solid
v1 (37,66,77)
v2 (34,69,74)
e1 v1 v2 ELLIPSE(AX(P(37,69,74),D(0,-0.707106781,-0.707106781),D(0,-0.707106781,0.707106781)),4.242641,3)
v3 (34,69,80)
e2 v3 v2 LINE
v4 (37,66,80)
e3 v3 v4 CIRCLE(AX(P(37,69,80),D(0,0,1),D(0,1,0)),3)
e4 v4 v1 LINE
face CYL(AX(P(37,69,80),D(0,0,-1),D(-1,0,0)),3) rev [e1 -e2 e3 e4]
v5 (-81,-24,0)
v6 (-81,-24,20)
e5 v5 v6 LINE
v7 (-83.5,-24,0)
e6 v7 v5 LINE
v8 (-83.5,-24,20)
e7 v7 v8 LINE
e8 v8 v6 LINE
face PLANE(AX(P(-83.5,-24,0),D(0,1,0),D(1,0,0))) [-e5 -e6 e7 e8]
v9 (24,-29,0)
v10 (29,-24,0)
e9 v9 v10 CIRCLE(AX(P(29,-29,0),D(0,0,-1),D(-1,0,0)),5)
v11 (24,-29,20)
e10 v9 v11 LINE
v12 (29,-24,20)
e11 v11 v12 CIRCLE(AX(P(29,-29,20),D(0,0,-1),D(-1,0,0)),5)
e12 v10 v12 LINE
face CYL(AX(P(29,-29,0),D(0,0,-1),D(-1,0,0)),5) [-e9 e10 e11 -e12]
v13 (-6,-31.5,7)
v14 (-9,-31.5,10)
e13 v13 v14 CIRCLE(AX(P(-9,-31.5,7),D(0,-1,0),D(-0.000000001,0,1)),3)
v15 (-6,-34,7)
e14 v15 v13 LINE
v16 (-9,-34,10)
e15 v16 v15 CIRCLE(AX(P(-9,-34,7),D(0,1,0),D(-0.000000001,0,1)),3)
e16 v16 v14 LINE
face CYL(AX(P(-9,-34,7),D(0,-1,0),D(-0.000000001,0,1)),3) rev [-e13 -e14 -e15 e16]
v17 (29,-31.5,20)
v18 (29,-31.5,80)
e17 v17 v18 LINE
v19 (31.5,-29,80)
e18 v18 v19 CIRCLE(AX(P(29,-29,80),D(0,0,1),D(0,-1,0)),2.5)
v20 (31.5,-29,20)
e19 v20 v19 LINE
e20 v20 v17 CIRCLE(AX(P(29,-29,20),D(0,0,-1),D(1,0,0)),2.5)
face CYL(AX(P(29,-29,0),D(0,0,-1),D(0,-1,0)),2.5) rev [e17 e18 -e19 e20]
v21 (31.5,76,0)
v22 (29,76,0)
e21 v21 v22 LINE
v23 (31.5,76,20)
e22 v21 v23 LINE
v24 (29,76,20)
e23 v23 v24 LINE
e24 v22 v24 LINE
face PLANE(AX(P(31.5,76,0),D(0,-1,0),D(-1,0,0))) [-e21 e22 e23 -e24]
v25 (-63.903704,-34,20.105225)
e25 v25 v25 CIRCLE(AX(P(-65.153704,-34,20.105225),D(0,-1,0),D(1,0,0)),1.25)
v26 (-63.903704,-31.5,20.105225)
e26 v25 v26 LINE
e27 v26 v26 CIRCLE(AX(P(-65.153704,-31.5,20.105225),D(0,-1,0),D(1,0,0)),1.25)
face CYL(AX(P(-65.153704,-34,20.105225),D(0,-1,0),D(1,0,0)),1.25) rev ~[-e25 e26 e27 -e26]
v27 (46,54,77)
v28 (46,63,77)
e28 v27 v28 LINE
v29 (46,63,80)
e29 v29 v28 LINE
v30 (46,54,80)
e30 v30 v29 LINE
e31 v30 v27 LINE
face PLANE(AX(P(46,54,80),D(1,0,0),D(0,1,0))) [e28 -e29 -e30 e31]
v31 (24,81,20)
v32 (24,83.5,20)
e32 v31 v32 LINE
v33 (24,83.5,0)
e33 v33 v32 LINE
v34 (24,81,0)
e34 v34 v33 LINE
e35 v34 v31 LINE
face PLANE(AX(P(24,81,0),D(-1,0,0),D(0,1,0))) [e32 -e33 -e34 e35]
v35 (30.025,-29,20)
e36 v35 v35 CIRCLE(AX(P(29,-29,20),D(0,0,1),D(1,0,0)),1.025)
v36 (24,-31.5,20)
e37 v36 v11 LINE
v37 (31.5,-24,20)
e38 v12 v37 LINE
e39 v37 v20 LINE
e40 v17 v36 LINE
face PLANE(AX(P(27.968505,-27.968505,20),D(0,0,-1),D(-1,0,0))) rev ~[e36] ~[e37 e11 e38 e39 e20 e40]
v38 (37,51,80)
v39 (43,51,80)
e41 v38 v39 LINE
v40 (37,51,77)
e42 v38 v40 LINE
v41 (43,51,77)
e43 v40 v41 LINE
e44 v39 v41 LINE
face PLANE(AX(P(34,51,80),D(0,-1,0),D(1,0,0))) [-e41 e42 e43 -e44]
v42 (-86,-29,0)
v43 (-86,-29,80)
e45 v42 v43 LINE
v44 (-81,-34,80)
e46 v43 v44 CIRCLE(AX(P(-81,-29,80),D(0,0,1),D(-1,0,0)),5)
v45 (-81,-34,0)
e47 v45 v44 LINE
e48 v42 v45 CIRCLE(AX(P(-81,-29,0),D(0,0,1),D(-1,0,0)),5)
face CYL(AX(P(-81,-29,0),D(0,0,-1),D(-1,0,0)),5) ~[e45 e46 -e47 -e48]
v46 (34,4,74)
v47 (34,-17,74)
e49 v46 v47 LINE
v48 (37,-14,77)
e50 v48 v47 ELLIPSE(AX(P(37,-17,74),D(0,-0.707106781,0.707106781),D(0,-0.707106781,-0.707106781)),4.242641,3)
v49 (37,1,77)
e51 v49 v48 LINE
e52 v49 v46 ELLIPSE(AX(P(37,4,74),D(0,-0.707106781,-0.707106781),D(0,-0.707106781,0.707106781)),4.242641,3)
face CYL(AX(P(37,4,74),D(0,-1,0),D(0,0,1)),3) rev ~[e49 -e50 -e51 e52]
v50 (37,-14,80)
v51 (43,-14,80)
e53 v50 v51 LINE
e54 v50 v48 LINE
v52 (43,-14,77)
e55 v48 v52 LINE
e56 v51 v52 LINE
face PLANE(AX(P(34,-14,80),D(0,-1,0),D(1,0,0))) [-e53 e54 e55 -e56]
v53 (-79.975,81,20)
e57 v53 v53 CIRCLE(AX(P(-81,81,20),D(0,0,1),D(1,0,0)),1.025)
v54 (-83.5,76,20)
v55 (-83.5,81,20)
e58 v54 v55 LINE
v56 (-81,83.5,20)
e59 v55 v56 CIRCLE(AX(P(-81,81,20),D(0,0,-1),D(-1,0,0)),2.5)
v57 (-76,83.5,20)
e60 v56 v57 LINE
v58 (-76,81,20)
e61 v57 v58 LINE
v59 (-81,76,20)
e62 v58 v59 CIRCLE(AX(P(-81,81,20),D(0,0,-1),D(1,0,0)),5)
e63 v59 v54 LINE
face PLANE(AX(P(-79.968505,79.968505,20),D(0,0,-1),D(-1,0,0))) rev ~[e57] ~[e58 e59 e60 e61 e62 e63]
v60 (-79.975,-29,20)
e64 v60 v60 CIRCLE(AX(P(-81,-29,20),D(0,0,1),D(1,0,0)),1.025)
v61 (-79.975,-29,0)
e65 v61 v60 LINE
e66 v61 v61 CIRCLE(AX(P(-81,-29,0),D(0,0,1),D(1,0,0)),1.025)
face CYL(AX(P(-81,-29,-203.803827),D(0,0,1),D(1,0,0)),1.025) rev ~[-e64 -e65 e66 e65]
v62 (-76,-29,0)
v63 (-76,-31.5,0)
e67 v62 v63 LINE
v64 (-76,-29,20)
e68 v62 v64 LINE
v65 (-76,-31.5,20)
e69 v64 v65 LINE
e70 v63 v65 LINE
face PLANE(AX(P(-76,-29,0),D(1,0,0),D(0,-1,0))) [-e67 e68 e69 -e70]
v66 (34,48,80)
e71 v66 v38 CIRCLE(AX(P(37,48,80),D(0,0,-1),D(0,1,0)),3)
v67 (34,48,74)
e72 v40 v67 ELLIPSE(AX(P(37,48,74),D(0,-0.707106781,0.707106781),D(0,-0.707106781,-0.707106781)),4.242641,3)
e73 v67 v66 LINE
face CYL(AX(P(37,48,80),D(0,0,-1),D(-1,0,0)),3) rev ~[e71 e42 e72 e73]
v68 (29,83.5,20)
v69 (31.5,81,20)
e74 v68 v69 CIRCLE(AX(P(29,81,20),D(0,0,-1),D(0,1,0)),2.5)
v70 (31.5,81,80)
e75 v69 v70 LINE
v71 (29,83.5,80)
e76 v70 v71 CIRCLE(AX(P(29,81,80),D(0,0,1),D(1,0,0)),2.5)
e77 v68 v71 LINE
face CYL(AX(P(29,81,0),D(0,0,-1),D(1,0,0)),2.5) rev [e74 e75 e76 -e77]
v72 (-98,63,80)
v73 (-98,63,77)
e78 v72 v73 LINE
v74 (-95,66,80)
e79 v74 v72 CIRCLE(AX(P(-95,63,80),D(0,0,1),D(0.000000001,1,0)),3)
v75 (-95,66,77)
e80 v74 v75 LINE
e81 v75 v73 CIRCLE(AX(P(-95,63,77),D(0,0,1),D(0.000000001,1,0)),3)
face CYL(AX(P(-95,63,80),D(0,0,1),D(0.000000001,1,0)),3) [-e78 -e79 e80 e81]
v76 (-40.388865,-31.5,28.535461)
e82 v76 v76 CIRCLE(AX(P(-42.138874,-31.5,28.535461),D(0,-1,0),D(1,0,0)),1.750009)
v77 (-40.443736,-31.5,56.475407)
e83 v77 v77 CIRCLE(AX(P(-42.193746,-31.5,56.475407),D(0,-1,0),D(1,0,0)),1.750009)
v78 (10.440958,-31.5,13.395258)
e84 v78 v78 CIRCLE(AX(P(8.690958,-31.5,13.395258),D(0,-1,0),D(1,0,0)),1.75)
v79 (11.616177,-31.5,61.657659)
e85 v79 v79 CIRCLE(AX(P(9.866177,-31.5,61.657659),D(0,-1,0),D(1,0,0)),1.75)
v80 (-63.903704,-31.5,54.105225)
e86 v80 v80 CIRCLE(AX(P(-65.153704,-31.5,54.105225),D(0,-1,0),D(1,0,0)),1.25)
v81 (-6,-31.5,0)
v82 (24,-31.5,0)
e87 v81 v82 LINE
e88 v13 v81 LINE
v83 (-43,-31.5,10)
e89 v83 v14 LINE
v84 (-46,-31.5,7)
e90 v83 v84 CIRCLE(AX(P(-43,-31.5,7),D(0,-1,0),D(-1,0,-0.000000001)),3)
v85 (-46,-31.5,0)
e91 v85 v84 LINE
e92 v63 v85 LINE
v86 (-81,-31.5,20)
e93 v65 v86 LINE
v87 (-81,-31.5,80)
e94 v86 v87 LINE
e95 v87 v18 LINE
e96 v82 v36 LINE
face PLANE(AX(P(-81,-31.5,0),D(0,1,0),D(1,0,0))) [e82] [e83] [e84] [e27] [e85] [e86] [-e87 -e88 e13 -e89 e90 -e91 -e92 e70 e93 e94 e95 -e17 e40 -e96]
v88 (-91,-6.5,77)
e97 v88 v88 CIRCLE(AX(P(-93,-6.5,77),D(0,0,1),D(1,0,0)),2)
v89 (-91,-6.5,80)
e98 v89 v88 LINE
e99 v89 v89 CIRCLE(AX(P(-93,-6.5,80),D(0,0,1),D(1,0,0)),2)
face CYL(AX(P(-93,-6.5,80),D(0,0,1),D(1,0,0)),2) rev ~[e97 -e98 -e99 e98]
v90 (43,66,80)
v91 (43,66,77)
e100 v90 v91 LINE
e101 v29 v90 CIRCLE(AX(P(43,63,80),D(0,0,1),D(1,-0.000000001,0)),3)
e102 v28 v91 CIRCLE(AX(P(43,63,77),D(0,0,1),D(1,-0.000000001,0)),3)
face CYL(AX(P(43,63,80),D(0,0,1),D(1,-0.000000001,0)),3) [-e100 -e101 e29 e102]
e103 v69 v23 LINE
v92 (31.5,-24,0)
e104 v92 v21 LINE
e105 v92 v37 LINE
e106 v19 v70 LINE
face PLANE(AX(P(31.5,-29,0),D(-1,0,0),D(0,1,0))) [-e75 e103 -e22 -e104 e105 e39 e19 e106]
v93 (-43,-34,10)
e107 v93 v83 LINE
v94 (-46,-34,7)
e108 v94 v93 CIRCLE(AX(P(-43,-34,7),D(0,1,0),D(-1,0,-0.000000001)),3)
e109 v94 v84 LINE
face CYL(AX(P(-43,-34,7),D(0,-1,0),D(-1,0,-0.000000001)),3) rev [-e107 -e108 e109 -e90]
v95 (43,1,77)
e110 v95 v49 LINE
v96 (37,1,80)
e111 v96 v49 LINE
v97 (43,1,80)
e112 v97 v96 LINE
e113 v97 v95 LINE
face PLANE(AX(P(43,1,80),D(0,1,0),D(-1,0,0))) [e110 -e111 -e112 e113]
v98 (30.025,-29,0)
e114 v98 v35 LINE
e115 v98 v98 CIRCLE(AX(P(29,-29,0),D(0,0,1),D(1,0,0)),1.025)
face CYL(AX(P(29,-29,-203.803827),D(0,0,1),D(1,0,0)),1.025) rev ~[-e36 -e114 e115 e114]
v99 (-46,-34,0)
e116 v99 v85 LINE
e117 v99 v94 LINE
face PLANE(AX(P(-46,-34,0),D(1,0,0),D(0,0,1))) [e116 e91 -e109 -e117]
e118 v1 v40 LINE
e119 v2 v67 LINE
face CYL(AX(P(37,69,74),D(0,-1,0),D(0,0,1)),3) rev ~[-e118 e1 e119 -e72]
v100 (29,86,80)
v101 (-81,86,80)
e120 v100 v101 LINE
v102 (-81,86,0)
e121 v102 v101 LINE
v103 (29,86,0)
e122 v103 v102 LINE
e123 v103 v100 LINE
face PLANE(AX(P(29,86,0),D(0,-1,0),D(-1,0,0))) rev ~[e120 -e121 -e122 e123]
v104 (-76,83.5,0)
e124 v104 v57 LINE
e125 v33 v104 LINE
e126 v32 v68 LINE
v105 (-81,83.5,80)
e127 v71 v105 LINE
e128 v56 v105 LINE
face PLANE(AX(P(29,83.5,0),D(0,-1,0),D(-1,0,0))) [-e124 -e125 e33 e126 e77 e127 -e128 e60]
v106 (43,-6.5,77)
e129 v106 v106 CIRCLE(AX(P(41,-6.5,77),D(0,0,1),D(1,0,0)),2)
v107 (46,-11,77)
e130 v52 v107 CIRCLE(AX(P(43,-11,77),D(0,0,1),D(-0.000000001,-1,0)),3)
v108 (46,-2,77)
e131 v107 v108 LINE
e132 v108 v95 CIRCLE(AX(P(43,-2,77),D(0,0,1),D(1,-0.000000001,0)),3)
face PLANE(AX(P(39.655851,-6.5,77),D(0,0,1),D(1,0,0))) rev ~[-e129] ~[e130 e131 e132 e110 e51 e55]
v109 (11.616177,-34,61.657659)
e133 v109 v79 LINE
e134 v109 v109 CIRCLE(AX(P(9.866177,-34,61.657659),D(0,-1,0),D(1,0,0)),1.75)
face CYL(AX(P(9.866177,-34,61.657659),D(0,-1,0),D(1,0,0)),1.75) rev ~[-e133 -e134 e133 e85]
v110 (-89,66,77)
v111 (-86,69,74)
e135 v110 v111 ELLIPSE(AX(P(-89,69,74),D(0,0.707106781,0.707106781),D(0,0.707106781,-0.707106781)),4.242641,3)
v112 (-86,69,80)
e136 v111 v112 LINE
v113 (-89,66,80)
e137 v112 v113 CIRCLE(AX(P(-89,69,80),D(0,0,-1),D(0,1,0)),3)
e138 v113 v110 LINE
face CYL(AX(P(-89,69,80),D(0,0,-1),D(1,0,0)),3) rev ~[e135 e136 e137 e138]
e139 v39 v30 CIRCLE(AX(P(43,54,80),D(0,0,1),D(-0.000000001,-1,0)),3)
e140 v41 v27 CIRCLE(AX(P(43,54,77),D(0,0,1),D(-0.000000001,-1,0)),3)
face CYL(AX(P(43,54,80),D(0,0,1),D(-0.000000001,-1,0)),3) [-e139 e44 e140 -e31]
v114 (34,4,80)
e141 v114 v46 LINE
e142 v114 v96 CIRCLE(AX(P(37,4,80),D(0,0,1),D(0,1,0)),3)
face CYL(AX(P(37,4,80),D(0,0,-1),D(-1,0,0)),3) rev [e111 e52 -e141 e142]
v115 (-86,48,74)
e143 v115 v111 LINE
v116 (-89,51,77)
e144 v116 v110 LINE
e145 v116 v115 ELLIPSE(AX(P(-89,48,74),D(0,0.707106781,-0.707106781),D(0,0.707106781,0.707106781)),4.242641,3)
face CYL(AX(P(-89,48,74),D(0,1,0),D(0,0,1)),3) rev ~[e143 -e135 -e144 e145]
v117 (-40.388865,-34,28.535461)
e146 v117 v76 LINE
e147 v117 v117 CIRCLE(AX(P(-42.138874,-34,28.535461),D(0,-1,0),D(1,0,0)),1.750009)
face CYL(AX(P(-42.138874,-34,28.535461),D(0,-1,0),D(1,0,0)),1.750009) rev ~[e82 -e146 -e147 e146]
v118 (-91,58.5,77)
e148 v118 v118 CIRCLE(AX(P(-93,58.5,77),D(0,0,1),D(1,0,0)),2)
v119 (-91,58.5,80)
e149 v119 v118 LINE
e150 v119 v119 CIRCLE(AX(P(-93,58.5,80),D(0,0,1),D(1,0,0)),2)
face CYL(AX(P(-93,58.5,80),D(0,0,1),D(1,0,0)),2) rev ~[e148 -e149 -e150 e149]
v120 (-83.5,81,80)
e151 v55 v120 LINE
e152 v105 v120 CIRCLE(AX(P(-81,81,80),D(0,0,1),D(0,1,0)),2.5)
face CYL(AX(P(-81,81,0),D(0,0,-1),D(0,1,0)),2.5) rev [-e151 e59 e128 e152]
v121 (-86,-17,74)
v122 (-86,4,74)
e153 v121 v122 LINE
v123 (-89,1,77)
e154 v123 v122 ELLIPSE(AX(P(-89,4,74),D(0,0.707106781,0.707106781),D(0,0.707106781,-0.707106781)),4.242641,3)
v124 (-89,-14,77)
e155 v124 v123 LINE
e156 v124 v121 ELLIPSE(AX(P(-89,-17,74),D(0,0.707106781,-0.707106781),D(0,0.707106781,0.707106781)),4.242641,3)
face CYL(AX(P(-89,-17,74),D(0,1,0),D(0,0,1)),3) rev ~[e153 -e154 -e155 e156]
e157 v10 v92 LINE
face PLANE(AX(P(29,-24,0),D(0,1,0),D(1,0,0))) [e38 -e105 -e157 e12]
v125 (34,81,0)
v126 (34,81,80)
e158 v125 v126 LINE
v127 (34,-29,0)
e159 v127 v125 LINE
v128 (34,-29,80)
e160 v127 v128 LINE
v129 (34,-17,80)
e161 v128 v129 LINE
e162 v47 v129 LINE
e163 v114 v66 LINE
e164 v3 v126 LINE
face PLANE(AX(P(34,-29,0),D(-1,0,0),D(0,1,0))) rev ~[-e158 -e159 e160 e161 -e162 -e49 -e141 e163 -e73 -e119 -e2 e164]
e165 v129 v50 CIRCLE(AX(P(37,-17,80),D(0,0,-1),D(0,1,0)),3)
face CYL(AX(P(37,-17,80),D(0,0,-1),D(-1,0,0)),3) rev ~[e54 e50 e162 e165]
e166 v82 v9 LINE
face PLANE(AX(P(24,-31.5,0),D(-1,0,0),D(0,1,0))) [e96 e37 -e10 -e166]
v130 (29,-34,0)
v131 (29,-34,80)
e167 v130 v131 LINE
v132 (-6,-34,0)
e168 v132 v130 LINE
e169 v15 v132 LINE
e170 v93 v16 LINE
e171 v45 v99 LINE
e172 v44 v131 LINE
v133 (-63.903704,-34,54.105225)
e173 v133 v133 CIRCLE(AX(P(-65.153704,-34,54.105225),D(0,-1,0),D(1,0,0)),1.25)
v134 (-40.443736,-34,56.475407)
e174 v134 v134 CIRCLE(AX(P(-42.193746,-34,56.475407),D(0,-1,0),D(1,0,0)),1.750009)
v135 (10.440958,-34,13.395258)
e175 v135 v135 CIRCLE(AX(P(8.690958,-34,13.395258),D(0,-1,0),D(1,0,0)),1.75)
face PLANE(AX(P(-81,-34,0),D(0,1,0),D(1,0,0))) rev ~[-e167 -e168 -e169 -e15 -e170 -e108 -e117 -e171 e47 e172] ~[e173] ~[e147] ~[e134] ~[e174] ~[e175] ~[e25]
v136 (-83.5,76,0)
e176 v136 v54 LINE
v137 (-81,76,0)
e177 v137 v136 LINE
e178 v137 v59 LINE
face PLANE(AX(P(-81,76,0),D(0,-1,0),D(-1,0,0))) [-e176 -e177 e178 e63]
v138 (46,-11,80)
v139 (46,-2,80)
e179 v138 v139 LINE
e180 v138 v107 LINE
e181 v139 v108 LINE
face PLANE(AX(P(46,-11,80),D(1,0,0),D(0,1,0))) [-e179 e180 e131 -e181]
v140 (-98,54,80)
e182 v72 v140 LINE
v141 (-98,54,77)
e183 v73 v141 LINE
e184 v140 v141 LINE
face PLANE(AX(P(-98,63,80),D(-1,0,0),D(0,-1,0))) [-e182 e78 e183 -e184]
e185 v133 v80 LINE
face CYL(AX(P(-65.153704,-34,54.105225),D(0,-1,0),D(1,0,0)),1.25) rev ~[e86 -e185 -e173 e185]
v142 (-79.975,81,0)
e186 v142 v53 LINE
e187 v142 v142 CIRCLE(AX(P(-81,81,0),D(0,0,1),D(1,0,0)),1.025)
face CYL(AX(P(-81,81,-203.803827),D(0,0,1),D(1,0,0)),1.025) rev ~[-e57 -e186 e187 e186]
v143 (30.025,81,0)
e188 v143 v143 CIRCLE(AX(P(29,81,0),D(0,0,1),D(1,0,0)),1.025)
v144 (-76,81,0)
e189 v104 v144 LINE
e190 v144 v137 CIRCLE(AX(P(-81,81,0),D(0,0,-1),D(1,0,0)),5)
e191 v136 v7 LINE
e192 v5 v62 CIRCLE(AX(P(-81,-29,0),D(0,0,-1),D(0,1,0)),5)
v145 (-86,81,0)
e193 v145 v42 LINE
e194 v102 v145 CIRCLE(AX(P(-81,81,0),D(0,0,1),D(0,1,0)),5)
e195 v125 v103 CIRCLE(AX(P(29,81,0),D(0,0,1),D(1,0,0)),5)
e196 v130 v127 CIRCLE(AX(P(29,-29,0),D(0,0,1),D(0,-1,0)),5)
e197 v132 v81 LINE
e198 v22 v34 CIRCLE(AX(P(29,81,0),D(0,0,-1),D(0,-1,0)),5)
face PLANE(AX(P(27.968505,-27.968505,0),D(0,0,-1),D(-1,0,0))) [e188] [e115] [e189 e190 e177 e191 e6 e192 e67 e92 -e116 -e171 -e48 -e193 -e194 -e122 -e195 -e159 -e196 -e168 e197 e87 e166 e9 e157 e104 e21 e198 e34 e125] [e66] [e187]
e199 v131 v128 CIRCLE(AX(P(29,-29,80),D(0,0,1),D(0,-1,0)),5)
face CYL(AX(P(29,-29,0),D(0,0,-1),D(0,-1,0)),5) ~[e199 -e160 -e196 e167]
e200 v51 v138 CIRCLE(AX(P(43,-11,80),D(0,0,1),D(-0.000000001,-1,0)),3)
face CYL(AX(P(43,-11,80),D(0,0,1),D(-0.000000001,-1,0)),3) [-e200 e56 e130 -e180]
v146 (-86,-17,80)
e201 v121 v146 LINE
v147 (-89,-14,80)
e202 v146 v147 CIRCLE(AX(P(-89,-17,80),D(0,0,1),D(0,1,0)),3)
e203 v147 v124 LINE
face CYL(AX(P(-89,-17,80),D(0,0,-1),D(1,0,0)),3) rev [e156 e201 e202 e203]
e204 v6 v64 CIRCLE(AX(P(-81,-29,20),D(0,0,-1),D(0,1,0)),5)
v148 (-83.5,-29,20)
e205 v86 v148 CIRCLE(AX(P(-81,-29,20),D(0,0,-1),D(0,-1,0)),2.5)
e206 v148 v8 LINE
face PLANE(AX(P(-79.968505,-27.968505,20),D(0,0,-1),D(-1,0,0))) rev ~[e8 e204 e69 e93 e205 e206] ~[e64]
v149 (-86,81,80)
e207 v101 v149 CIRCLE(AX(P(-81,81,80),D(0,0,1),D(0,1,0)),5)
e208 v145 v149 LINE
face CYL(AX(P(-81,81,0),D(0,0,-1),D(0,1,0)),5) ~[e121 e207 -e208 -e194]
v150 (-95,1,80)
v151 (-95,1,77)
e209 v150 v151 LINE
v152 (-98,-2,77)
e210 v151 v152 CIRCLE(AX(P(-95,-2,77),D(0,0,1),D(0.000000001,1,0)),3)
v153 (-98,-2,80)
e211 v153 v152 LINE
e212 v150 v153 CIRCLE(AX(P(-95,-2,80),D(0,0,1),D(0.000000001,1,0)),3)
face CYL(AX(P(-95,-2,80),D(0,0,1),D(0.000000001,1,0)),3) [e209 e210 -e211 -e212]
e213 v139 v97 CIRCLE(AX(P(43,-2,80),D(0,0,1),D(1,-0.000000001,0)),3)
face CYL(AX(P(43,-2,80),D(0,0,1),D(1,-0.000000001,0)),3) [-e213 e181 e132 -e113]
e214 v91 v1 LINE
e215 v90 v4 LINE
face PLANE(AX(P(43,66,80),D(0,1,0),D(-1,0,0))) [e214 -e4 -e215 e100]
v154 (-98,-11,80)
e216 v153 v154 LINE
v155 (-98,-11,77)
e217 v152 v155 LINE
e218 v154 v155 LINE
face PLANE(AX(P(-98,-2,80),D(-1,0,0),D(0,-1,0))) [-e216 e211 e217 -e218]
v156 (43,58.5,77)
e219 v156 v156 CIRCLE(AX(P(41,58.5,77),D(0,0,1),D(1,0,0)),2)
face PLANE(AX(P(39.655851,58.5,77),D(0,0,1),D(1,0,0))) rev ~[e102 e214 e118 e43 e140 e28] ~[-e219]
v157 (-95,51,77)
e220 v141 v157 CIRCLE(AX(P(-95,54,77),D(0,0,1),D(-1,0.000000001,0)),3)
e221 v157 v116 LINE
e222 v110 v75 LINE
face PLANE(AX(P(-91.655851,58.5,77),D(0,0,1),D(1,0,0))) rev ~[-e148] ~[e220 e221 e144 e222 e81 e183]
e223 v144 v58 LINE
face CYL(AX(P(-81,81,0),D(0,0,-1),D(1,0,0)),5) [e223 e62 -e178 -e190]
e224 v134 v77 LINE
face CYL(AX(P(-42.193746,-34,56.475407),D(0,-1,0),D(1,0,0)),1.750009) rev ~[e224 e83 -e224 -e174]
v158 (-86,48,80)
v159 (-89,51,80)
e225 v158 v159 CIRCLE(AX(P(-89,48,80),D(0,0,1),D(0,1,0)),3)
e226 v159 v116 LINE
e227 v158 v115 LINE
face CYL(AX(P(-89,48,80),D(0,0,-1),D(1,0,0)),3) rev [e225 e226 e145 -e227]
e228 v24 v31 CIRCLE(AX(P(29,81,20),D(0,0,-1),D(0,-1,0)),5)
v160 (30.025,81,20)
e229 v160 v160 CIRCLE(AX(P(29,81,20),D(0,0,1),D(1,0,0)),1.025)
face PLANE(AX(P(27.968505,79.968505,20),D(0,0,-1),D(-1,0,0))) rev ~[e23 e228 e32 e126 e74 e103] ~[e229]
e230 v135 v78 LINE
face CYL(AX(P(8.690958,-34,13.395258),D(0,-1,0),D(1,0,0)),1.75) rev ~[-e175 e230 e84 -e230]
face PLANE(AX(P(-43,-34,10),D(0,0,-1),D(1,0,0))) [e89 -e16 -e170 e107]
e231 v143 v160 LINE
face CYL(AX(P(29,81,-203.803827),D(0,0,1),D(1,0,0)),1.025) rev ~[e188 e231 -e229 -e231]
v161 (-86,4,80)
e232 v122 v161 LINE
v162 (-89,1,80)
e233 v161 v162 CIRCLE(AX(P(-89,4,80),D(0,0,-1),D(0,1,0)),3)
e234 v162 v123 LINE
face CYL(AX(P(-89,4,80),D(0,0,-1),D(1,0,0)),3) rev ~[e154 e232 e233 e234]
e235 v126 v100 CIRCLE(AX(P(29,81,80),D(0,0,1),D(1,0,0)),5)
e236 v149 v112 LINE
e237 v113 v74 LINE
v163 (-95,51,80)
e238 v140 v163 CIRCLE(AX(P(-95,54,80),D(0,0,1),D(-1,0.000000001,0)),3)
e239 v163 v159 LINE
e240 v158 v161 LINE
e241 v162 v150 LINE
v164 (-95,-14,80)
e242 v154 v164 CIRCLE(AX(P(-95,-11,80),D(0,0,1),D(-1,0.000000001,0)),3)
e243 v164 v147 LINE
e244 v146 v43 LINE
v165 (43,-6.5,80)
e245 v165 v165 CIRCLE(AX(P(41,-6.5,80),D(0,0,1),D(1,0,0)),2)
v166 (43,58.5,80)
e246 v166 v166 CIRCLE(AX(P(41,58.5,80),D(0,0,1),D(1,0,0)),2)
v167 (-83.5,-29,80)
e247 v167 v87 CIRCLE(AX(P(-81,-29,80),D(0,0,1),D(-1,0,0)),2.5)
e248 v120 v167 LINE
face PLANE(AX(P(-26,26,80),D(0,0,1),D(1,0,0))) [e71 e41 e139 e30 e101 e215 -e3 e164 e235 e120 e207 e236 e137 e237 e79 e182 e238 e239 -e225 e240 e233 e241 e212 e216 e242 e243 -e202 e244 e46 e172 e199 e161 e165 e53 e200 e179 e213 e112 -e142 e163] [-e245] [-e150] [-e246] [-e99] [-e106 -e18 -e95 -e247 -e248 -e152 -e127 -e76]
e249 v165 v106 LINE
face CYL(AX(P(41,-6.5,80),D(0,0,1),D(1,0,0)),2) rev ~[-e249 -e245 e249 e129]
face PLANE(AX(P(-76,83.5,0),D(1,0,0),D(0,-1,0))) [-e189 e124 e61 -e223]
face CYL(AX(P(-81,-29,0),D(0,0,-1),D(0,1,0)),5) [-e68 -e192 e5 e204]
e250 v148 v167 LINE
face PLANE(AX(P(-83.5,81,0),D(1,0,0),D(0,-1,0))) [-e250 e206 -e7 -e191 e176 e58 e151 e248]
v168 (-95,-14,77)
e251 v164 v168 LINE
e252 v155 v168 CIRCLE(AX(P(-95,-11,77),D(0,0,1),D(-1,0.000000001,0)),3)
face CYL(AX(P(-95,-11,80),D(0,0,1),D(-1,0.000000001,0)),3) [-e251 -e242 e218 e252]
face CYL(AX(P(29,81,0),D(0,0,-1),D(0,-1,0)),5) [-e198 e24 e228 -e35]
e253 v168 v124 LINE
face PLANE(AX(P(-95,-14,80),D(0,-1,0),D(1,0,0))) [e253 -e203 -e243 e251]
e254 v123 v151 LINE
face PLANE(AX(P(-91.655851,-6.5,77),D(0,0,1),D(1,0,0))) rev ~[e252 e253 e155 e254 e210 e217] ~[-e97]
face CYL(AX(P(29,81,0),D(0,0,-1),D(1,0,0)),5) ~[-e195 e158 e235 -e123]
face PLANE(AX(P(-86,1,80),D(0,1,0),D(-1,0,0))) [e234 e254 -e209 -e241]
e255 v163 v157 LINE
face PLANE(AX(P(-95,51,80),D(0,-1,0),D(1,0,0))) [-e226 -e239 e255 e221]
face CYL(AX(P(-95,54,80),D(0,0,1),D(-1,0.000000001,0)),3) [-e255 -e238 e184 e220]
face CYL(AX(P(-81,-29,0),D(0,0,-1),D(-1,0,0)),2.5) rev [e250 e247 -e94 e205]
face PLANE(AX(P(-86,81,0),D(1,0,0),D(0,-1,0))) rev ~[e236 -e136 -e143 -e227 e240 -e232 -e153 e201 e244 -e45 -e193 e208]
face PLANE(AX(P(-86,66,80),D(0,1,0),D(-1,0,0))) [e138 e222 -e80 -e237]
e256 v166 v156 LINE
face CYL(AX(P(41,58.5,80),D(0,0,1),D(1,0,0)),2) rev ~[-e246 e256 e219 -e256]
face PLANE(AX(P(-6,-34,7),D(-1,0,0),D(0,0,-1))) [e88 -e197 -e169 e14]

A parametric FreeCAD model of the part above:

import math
import FreeCAD as App
import Part
import Sketcher


def edges_at(feature, points):
    """Names of the edges that pass closest to the given points."""
    edges = feature.Shape.Edges
    near = lambda p: min(range(len(edges)), key=lambda i: edges[i].distToShape(Part.Vertex(*p))[0])
    return sorted({f"Edge{near(p) + 1}" for p in points})

doc = App.newDocument("Part")
body = doc.addObject("PartDesign::Body", "Body")

sketch1 = body.newObject("Sketcher::SketchObject", "Sketch")
sketch1.AttachmentSupport = (doc.getObject("XY_Plane"), [""])
sketch1.MapMode = "FlatFace"
sketch1.addGeometry(Part.LineSegment(App.Vector(29, 86, 0), App.Vector(-81, 86, 0)), False)
sketch1.addGeometry(Part.ArcOfCircle(Part.Circle(App.Vector(-81, 81, 0), App.Vector(0, 0, 1), 5), math.radians(90), math.radians(180)), False)
sketch1.addGeometry(Part.LineSegment(App.Vector(-86, 81, 0), App.Vector(-86, -29, 0)), False)
sketch1.addGeometry(Part.ArcOfCircle(Part.Circle(App.Vector(-81, -29, 0), App.Vector(0, 0, 1), 5), math.radians(180), math.radians(270)), False)
sketch1.addGeometry(Part.LineSegment(App.Vector(-81, -34, 0), App.Vector(29, -34, 0)), False)
sketch1.addGeometry(Part.ArcOfCircle(Part.Circle(App.Vector(29, -29, 0), App.Vector(0, 0, 1), 5), math.radians(-90), math.radians(0)), False)
sketch1.addGeometry(Part.LineSegment(App.Vector(34, -29, 0), App.Vector(34, 81, 0)), False)
sketch1.addGeometry(Part.ArcOfCircle(Part.Circle(App.Vector(29, 81, 0), App.Vector(0, 0, 1), 5), math.radians(0), math.radians(90)), False)
sketch1.addGeometry(Part.LineSegment(App.Vector(-81, 83.5, 0), App.Vector(29, 83.5, 0)), False)
sketch1.addGeometry(Part.ArcOfCircle(Part.Circle(App.Vector(29, 81, 0), App.Vector(0, 0, 1), 2.5), math.radians(0), math.radians(90)), False)
sketch1.addGeometry(Part.LineSegment(App.Vector(31.5, 81, 0), App.Vector(31.5, -29, 0)), False)
sketch1.addGeometry(Part.ArcOfCircle(Part.Circle(App.Vector(29, -29, 0), App.Vector(0, 0, 1), 2.5), math.radians(-90), math.radians(0)), False)
sketch1.addGeometry(Part.LineSegment(App.Vector(29, -31.5, 0), App.Vector(-81, -31.5, 0)), False)
sketch1.addGeometry(Part.ArcOfCircle(Part.Circle(App.Vector(-81, -29, 0), App.Vector(0, 0, 1), 2.5), math.radians(180), math.radians(270)), False)
sketch1.addGeometry(Part.LineSegment(App.Vector(-83.5, -29, 0), App.Vector(-83.5, 81, 0)), False)
sketch1.addGeometry(Part.ArcOfCircle(Part.Circle(App.Vector(-81, 81, 0), App.Vector(0, 0, 1), 2.5), math.radians(90), math.radians(180)), False)
sketch1.addConstraint(Sketcher.Constraint("Tangent", 0, 2, 1, 1))
sketch1.addConstraint(Sketcher.Constraint("Tangent", 1, 2, 2, 1))
sketch1.addConstraint(Sketcher.Constraint("Tangent", 2, 2, 3, 1))
sketch1.addConstraint(Sketcher.Constraint("Tangent", 3, 2, 4, 1))
sketch1.addConstraint(Sketcher.Constraint("Tangent", 4, 2, 5, 1))
sketch1.addConstraint(Sketcher.Constraint("Tangent", 5, 2, 6, 1))
sketch1.addConstraint(Sketcher.Constraint("Tangent", 6, 2, 7, 1))
sketch1.addConstraint(Sketcher.Constraint("Tangent", 7, 2, 0, 1))
sketch1.addConstraint(Sketcher.Constraint("Tangent", 8, 2, 9, 2))
sketch1.addConstraint(Sketcher.Constraint("Tangent", 9, 1, 10, 1))
sketch1.addConstraint(Sketcher.Constraint("Tangent", 10, 2, 11, 2))
sketch1.addConstraint(Sketcher.Constraint("Tangent", 11, 1, 12, 1))
sketch1.addConstraint(Sketcher.Constraint("Tangent", 12, 2, 13, 2))
sketch1.addConstraint(Sketcher.Constraint("Tangent", 13, 1, 14, 1))
sketch1.addConstraint(Sketcher.Constraint("Tangent", 14, 2, 15, 2))
sketch1.addConstraint(Sketcher.Constraint("Tangent", 15, 1, 8, 1))
sketch1.addConstraint(Sketcher.Constraint("Horizontal", 0))
sketch1.addConstraint(Sketcher.Constraint("Vertical", 2))
sketch1.addConstraint(Sketcher.Constraint("Horizontal", 4))
sketch1.addConstraint(Sketcher.Constraint("Vertical", 6))
sketch1.addConstraint(Sketcher.Constraint("Horizontal", 8))
sketch1.addConstraint(Sketcher.Constraint("Vertical", 10))
sketch1.addConstraint(Sketcher.Constraint("Horizontal", 12))
sketch1.addConstraint(Sketcher.Constraint("Vertical", 14))
sketch1.addConstraint(Sketcher.Constraint("Coincident", 9, 3, 7, 3))
sketch1.addConstraint(Sketcher.Constraint("Coincident", 11, 3, 5, 3))
sketch1.addConstraint(Sketcher.Constraint("Coincident", 13, 3, 3, 3))
sketch1.addConstraint(Sketcher.Constraint("Equal", 1, 3))
sketch1.addConstraint(Sketcher.Constraint("Equal", 3, 5))
sketch1.addConstraint(Sketcher.Constraint("Equal", 5, 7))
sketch1.addConstraint(Sketcher.Constraint("Equal", 13, 15))
sketch1.addConstraint(Sketcher.Constraint("Equal", 12, 2))
sketch1.addConstraint(Sketcher.Constraint("Radius", 1, 5.0))
sketch1.addConstraint(Sketcher.Constraint("Radius", 9, 2.5))
sketch1.addConstraint(Sketcher.Constraint("DistanceX", 0, 2, 0, 1, 110.0))
sketch1.addConstraint(Sketcher.Constraint("DistanceX", 1, 3, -1, 1, 81.0))
sketch1.addConstraint(Sketcher.Constraint("DistanceY", -1, 1, 1, 3, 81.0))
pad1 = body.newObject("PartDesign::Pad", "Pad")
pad1.Profile = sketch1
pad1.Length = 80

sketch2 = body.newObject("Sketcher::SketchObject", "Sketch001")
sketch2.AttachmentSupport = (doc.getObject("XY_Plane"), [""])
sketch2.MapMode = "FlatFace"
sketch2.addGeometry(Part.LineSegment(App.Vector(31.5, -24, 0), App.Vector(29, -24, 0)), False)
sketch2.addGeometry(Part.ArcOfCircle(Part.Circle(App.Vector(29, -29, 0), App.Vector(0, 0, 1), 5), math.radians(90), math.radians(180)), False)
sketch2.addGeometry(Part.LineSegment(App.Vector(24, -29, 0), App.Vector(24, -31.5, 0)), False)
sketch2.addGeometry(Part.LineSegment(App.Vector(24, -31.5, 0), App.Vector(29, -31.5, 0)), False)
sketch2.addGeometry(Part.ArcOfCircle(Part.Circle(App.Vector(29, -29, 0), App.Vector(0, 0, 1), 2.5), math.radians(-90), math.radians(0)), False)
sketch2.addGeometry(Part.LineSegment(App.Vector(31.5, -29, 0), App.Vector(31.5, -24, 0)), False)
sketch2.addGeometry(Part.LineSegment(App.Vector(-76, -31.5, 0), App.Vector(-76, -29, 0)), False)
sketch2.addGeometry(Part.ArcOfCircle(Part.Circle(App.Vector(-81, -29, 0), App.Vector(0, 0, 1), 5), math.radians(0), math.radians(90)), False)
sketch2.addGeometry(Part.LineSegment(App.Vector(-81, -24, 0), App.Vector(-83.5, -24, 0)), False)
sketch2.addGeometry(Part.LineSegment(App.Vector(-83.5, -24, 0), App.Vector(-83.5, -29, 0)), False)
sketch2.addGeometry(Part.ArcOfCircle(Part.Circle(App.Vector(-81, -29, 0), App.Vector(0, 0, 1), 2.5), math.radians(180), math.radians(270)), False)
sketch2.addGeometry(Part.LineSegment(App.Vector(-81, -31.5, 0), App.Vector(-76, -31.5, 0)), False)
sketch2.addGeometry(Part.LineSegment(App.Vector(-83.5, 76, 0), App.Vector(-81, 76, 0)), False)
sketch2.addGeometry(Part.ArcOfCircle(Part.Circle(App.Vector(-81, 81, 0), App.Vector(0, 0, 1), 5), math.radians(-90), math.radians(0)), False)
sketch2.addGeometry(Part.LineSegment(App.Vector(-76, 81, 0), App.Vector(-76, 83.5, 0)), False)
sketch2.addGeometry(Part.LineSegment(App.Vector(-76, 83.5, 0), App.Vector(-81, 83.5, 0)), False)
sketch2.addGeometry(Part.ArcOfCircle(Part.Circle(App.Vector(-81, 81, 0), App.Vector(0, 0, 1), 2.5), math.radians(90), math.radians(180)), False)
sketch2.addGeometry(Part.LineSegment(App.Vector(-83.5, 81, 0), App.Vector(-83.5, 76, 0)), False)
sketch2.addGeometry(Part.LineSegment(App.Vector(24, 83.5, 0), App.Vector(24, 81, 0)), False)
sketch2.addGeometry(Part.ArcOfCircle(Part.Circle(App.Vector(29, 81, 0), App.Vector(0, 0, 1), 5), math.radians(180), math.radians(270)), False)
sketch2.addGeometry(Part.LineSegment(App.Vector(29, 76, 0), App.Vector(31.5, 76, 0)), False)
sketch2.addGeometry(Part.LineSegment(App.Vector(31.5, 76, 0), App.Vector(31.5, 81, 0)), False)
sketch2.addGeometry(Part.ArcOfCircle(Part.Circle(App.Vector(29, 81, 0), App.Vector(0, 0, 1), 2.5), math.radians(0), math.radians(90)), False)
sketch2.addGeometry(Part.LineSegment(App.Vector(29, 83.5, 0), App.Vector(24, 83.5, 0)), False)
sketch2.addConstraint(Sketcher.Constraint("Tangent", 0, 2, 1, 1))
sketch2.addConstraint(Sketcher.Constraint("Tangent", 1, 2, 2, 1))
sketch2.addConstraint(Sketcher.Constraint("Coincident", 2, 2, 3, 1))
sketch2.addConstraint(Sketcher.Constraint("Tangent", 3, 2, 4, 1))
sketch2.addConstraint(Sketcher.Constraint("Tangent", 4, 2, 5, 1))
sketch2.addConstraint(Sketcher.Constraint("Coincident", 5, 2, 0, 1))
sketch2.addConstraint(Sketcher.Constraint("Tangent", 6, 2, 7, 1))
sketch2.addConstraint(Sketcher.Constraint("Tangent", 7, 2, 8, 1))
sketch2.addConstraint(Sketcher.Constraint("Coincident", 8, 2, 9, 1))
sketch2.addConstraint(Sketcher.Constraint("Tangent", 9, 2, 10, 1))
sketch2.addConstraint(Sketcher.Constraint("Tangent", 10, 2, 11, 1))
sketch2.addConstraint(Sketcher.Constraint("Coincident", 11, 2, 6, 1))
sketch2.addConstraint(Sketcher.Constraint("Tangent", 12, 2, 13, 1))
sketch2.addConstraint(Sketcher.Constraint("Tangent", 13, 2, 14, 1))
sketch2.addConstraint(Sketcher.Constraint("Coincident", 14, 2, 15, 1))
sketch2.addConstraint(Sketcher.Constraint("Tangent", 15, 2, 16, 1))
sketch2.addConstraint(Sketcher.Constraint("Tangent", 16, 2, 17, 1))
sketch2.addConstraint(Sketcher.Constraint("Coincident", 17, 2, 12, 1))
sketch2.addConstraint(Sketcher.Constraint("Tangent", 18, 2, 19, 1))
sketch2.addConstraint(Sketcher.Constraint("Tangent", 19, 2, 20, 1))
sketch2.addConstraint(Sketcher.Constraint("Coincident", 20, 2, 21, 1))
sketch2.addConstraint(Sketcher.Constraint("Tangent", 21, 2, 22, 1))
sketch2.addConstraint(Sketcher.Constraint("Tangent", 22, 2, 23, 1))
sketch2.addConstraint(Sketcher.Constraint("Coincident", 23, 2, 18, 1))
sketch2.addConstraint(Sketcher.Constraint("Horizontal", 0))
sketch2.addConstraint(Sketcher.Constraint("Vertical", 2))
sketch2.addConstraint(Sketcher.Constraint("Horizontal", 3))
sketch2.addConstraint(Sketcher.Constraint("Vertical", 5))
sketch2.addConstraint(Sketcher.Constraint("Vertical", 6))
sketch2.addConstraint(Sketcher.Constraint("Horizontal", 8))
sketch2.addConstraint(Sketcher.Constraint("Vertical", 9))
sketch2.addConstraint(Sketcher.Constraint("Horizontal", 11))
sketch2.addConstraint(Sketcher.Constraint("Horizontal", 12))
sketch2.addConstraint(Sketcher.Constraint("Vertical", 14))
sketch2.addConstraint(Sketcher.Constraint("Horizontal", 15))
sketch2.addConstraint(Sketcher.Constraint("Vertical", 17))
sketch2.addConstraint(Sketcher.Constraint("Vertical", 18))
sketch2.addConstraint(Sketcher.Constraint("Horizontal", 20))
sketch2.addConstraint(Sketcher.Constraint("Vertical", 21))
sketch2.addConstraint(Sketcher.Constraint("Horizontal", 23))
sketch2.addConstraint(Sketcher.Constraint("Coincident", 4, 3, 1, 3))
sketch2.addConstraint(Sketcher.Constraint("Coincident", 10, 3, 7, 3))
sketch2.addConstraint(Sketcher.Constraint("Coincident", 16, 3, 13, 3))
sketch2.addConstraint(Sketcher.Constraint("Coincident", 22, 3, 19, 3))
sketch2.addConstraint(Sketcher.Constraint("Equal", 1, 7))
sketch2.addConstraint(Sketcher.Constraint("Equal", 4, 10))
sketch2.addConstraint(Sketcher.Constraint("Equal", 7, 13))
sketch2.addConstraint(Sketcher.Constraint("Equal", 10, 16))
sketch2.addConstraint(Sketcher.Constraint("Equal", 13, 19))
sketch2.addConstraint(Sketcher.Constraint("Equal", 16, 22))
sketch2.addConstraint(Sketcher.Constraint("Horizontal", 4, 3, 7, 3))
sketch2.addConstraint(Sketcher.Constraint("Horizontal", 16, 3, 19, 3))
sketch2.addConstraint(Sketcher.Constraint("Vertical", 10, 3, 13, 3))
sketch2.addConstraint(Sketcher.Constraint("Vertical", 4, 3, 19, 3))
sketch2.addConstraint(Sketcher.Constraint("Radius", 1, 5.0))
sketch2.addConstraint(Sketcher.Constraint("Radius", 4, 2.5))
sketch2.addConstraint(Sketcher.Constraint("DistanceX", -1, 1, 1, 3, 29.0))
sketch2.addConstraint(Sketcher.Constraint("DistanceY", 1, 3, -1, 1, 29.0))
sketch2.addConstraint(Sketcher.Constraint("DistanceX", 7, 3, -1, 1, 81.0))
sketch2.addConstraint(Sketcher.Constraint("DistanceY", -1, 1, 13, 3, 81.0))
pad2 = body.newObject("PartDesign::Pad", "Pad001")
pad2.Profile = sketch2
pad2.Length = 20

sketch3 = body.newObject("Sketcher::SketchObject", "Sketch002")
sketch3.AttachmentSupport = (doc.getObject("XZ_Plane"), [""])
sketch3.MapMode = "FlatFace"
sketch3.AttachmentOffset = App.Placement(App.Vector(0, 0, 34), App.Rotation())
sketch3.addGeometry(Part.Circle(App.Vector(9.9, 61.7, 0), App.Vector(0, 0, 1), 1.8), False)
sketch3.addGeometry(Part.Circle(App.Vector(8.7, 13.4, 0), App.Vector(0, 0, 1), 1.8), False)
sketch3.addGeometry(Part.Circle(App.Vector(-42.2, 56.5, 0), App.Vector(0, 0, 1), 1.8), False)
sketch3.addGeometry(Part.Circle(App.Vector(-42.1, 28.5, 0), App.Vector(0, 0, 1), 1.8), False)
sketch3.addGeometry(Part.Circle(App.Vector(-65.2, 54.1, 0), App.Vector(0, 0, 1), 1.2), False)
sketch3.addGeometry(Part.Circle(App.Vector(-65.2, 20.1, 0), App.Vector(0, 0, 1), 1.2), False)
sketch3.addConstraint(Sketcher.Constraint("Equal", 0, 1))
sketch3.addConstraint(Sketcher.Constraint("Equal", 2, 3))
sketch3.addConstraint(Sketcher.Constraint("Equal", 4, 5))
sketch3.addConstraint(Sketcher.Constraint("Vertical", 4, 3, 5, 3))
sketch3.addConstraint(Sketcher.Constraint("Diameter", 0, 3.5))
sketch3.addConstraint(Sketcher.Constraint("Diameter", 4, 2.5))
sketch3.addConstraint(Sketcher.Constraint("DistanceY", 5, 3, 4, 3, 34.0))
sketch3.addConstraint(Sketcher.Constraint("Diameter", 2, 3.500018))
sketch3.addConstraint(Sketcher.Constraint("DistanceY", 1, 3, 0, 3, 48.262401))
sketch3.addConstraint(Sketcher.Constraint("DistanceY", -1, 1, 0, 3, 61.657659))
sketch3.addConstraint(Sketcher.Constraint("DistanceX", -1, 1, 1, 3, 8.690958))
sketch3.addConstraint(Sketcher.Constraint("DistanceY", -1, 1, 3, 3, 28.535461))
sketch3.addConstraint(Sketcher.Constraint("DistanceX", 1, 3, 0, 3, 1.175219))
sketch3.addConstraint(Sketcher.Constraint("DistanceY", 2, 3, 0, 3, 5.182251))
sketch3.addConstraint(Sketcher.Constraint("DistanceX", 2, 3, 3, 3, 0.054872))
sketch3.addConstraint(Sketcher.Constraint("DistanceX", 3, 3, 0, 3, 52.005051))
sketch3.addConstraint(Sketcher.Constraint("DistanceX", 4, 3, 2, 3, 22.959958))
sketch3.addConstraint(Sketcher.Constraint("DistanceY", -1, 1, 4, 3, 54.105225))
pocket1 = body.newObject("PartDesign::Pocket", "Pocket")
pocket1.Profile = sketch3
pocket1.Length = 10

sketch4 = body.newObject("Sketcher::SketchObject", "Sketch003")
sketch4.AttachmentSupport = (doc.getObject("XZ_Plane"), [""])
sketch4.MapMode = "FlatFace"
sketch4.AttachmentOffset = App.Placement(App.Vector(0, 0, 34), App.Rotation())
sketch4.addGeometry(Part.LineSegment(App.Vector(-46, 0, 0), App.Vector(-6, 0, 0)), False)
sketch4.addGeometry(Part.LineSegment(App.Vector(-6, 0, 0), App.Vector(-6, 7, 0)), False)
sketch4.addGeometry(Part.ArcOfCircle(Part.Circle(App.Vector(-9, 7, 0), App.Vector(0, 0, 1), 3), math.radians(0), math.radians(90)), False)
sketch4.addGeometry(Part.LineSegment(App.Vector(-9, 10, 0), App.Vector(-43, 10, 0)), False)
sketch4.addGeometry(Part.ArcOfCircle(Part.Circle(App.Vector(-43, 7, 0), App.Vector(0, 0, 1), 3), math.radians(90), math.radians(180)), False)
sketch4.addGeometry(Part.LineSegment(App.Vector(-46, 7, 0), App.Vector(-46, 0, 0)), False)
sketch4.addConstraint(Sketcher.Constraint("Coincident", 0, 2, 1, 1))
sketch4.addConstraint(Sketcher.Constraint("Tangent", 1, 2, 2, 1))
sketch4.addConstraint(Sketcher.Constraint("Tangent", 2, 2, 3, 1))
sketch4.addConstraint(Sketcher.Constraint("Tangent", 3, 2, 4, 1))
sketch4.addConstraint(Sketcher.Constraint("Tangent", 4, 2, 5, 1))
sketch4.addConstraint(Sketcher.Constraint("Coincident", 5, 2, 0, 1))
sketch4.addConstraint(Sketcher.Constraint("Horizontal", 0))
sketch4.addConstraint(Sketcher.Constraint("Vertical", 1))
sketch4.addConstraint(Sketcher.Constraint("Horizontal", 3))
sketch4.addConstraint(Sketcher.Constraint("Vertical", 5))
sketch4.addConstraint(Sketcher.Constraint("Equal", 2, 4))
sketch4.addConstraint(Sketcher.Constraint("PointOnObject", 0, 2, -1))
sketch4.addConstraint(Sketcher.Constraint("Radius", 2, 3.0))
sketch4.addConstraint(Sketcher.Constraint("DistanceX", 0, 1, 0, 2, 40.0))
sketch4.addConstraint(Sketcher.Constraint("DistanceY", 1, 1, 1, 2, 7.0))
sketch4.addConstraint(Sketcher.Constraint("DistanceX", 2, 3, -1, 1, 9.0))
pocket2 = body.newObject("PartDesign::Pocket", "Pocket001")
pocket2.Profile = sketch4
pocket2.Type = "UpToFirst"

sketch5 = body.newObject("Sketcher::SketchObject", "Sketch004")
sketch5.AttachmentSupport = (doc.getObject("XY_Plane"), [""])
sketch5.MapMode = "FlatFace"
sketch5.AttachmentOffset = App.Placement(App.Vector(0, 0, 80), App.Rotation())
sketch5.addGeometry(Part.LineSegment(App.Vector(-86, -14, 0), App.Vector(-86, 1, 0)), False)
sketch5.addGeometry(Part.LineSegment(App.Vector(-86, 1, 0), App.Vector(-95, 1, 0)), False)
sketch5.addGeometry(Part.ArcOfCircle(Part.Circle(App.Vector(-95, -2, 0), App.Vector(0, 0, 1), 3), math.radians(90), math.radians(180)), False)
sketch5.addGeometry(Part.LineSegment(App.Vector(-98, -2, 0), App.Vector(-98, -11, 0)), False)
sketch5.addGeometry(Part.ArcOfCircle(Part.Circle(App.Vector(-95, -11, 0), App.Vector(0, 0, 1), 3), math.radians(180), math.radians(270)), False)
sketch5.addGeometry(Part.LineSegment(App.Vector(-95, -14, 0), App.Vector(-86, -14, 0)), False)
sketch5.addGeometry(Part.Circle(App.Vector(-93, -6.5, 0), App.Vector(0, 0, 1), 2), False)
sketch5.addGeometry(Part.LineSegment(App.Vector(43, 1, 0), App.Vector(34, 1, 0)), False)
sketch5.addGeometry(Part.LineSegment(App.Vector(34, 1, 0), App.Vector(34, -14, 0)), False)
sketch5.addGeometry(Part.LineSegment(App.Vector(34, -14, 0), App.Vector(43, -14, 0)), False)
sketch5.addGeometry(Part.ArcOfCircle(Part.Circle(App.Vector(43, -11, 0), App.Vector(0, 0, 1), 3), math.radians(-90), math.radians(0)), False)
sketch5.addGeometry(Part.LineSegment(App.Vector(46, -11, 0), App.Vector(46, -2, 0)), False)
sketch5.addGeometry(Part.ArcOfCircle(Part.Circle(App.Vector(43, -2, 0), App.Vector(0, 0, 1), 3), math.radians(0), math.radians(90)), False)
sketch5.addGeometry(Part.Circle(App.Vector(41, -6.5, 0), App.Vector(0, 0, 1), 2), False)
sketch5.addGeometry(Part.LineSegment(App.Vector(46, 54, 0), App.Vector(46, 63, 0)), False)
sketch5.addGeometry(Part.ArcOfCircle(Part.Circle(App.Vector(43, 63, 0), App.Vector(0, 0, 1), 3), math.radians(0), math.radians(90)), False)
sketch5.addGeometry(Part.LineSegment(App.Vector(43, 66, 0), App.Vector(34, 66, 0)), False)
sketch5.addGeometry(Part.LineSegment(App.Vector(34, 66, 0), App.Vector(34, 51, 0)), False)
sketch5.addGeometry(Part.LineSegment(App.Vector(34, 51, 0), App.Vector(43, 51, 0)), False)
sketch5.addGeometry(Part.ArcOfCircle(Part.Circle(App.Vector(43, 54, 0), App.Vector(0, 0, 1), 3), math.radians(-90), math.radians(0)), False)
sketch5.addGeometry(Part.Circle(App.Vector(41, 58.5, 0), App.Vector(0, 0, 1), 2), False)
sketch5.addGeometry(Part.LineSegment(App.Vector(-86, 51, 0), App.Vector(-86, 66, 0)), False)
sketch5.addGeometry(Part.LineSegment(App.Vector(-86, 66, 0), App.Vector(-95, 66, 0)), False)
sketch5.addGeometry(Part.ArcOfCircle(Part.Circle(App.Vector(-95, 63, 0), App.Vector(0, 0, 1), 3), math.radians(90), math.radians(180)), False)
sketch5.addGeometry(Part.LineSegment(App.Vector(-98, 63, 0), App.Vector(-98, 54, 0)), False)
sketch5.addGeometry(Part.ArcOfCircle(Part.Circle(App.Vector(-95, 54, 0), App.Vector(0, 0, 1), 3), math.radians(180), math.radians(270)), False)
sketch5.addGeometry(Part.LineSegment(App.Vector(-95, 51, 0), App.Vector(-86, 51, 0)), False)
sketch5.addGeometry(Part.Circle(App.Vector(-93, 58.5, 0), App.Vector(0, 0, 1), 2), False)
sketch5.addConstraint(Sketcher.Constraint("Coincident", 0, 2, 1, 1))
sketch5.addConstraint(Sketcher.Constraint("Tangent", 1, 2, 2, 1))
sketch5.addConstraint(Sketcher.Constraint("Tangent", 2, 2, 3, 1))
sketch5.addConstraint(Sketcher.Constraint("Tangent", 3, 2, 4, 1))
sketch5.addConstraint(Sketcher.Constraint("Tangent", 4, 2, 5, 1))
sketch5.addConstraint(Sketcher.Constraint("Coincident", 5, 2, 0, 1))
sketch5.addConstraint(Sketcher.Constraint("Coincident", 7, 2, 8, 1))
sketch5.addConstraint(Sketcher.Constraint("Coincident", 8, 2, 9, 1))
sketch5.addConstraint(Sketcher.Constraint("Tangent", 9, 2, 10, 1))
sketch5.addConstraint(Sketcher.Constraint("Tangent", 10, 2, 11, 1))
sketch5.addConstraint(Sketcher.Constraint("Tangent", 11, 2, 12, 1))
sketch5.addConstraint(Sketcher.Constraint("Tangent", 12, 2, 7, 1))
sketch5.addConstraint(Sketcher.Constraint("Tangent", 14, 2, 15, 1))
sketch5.addConstraint(Sketcher.Constraint("Tangent", 15, 2, 16, 1))
sketch5.addConstraint(Sketcher.Constraint("Coincident", 16, 2, 17, 1))
sketch5.addConstraint(Sketcher.Constraint("Coincident", 17, 2, 18, 1))
sketch5.addConstraint(Sketcher.Constraint("Tangent", 18, 2, 19, 1))
sketch5.addConstraint(Sketcher.Constraint("Tangent", 19, 2, 14, 1))
sketch5.addConstraint(Sketcher.Constraint("Coincident", 21, 2, 22, 1))
sketch5.addConstraint(Sketcher.Constraint("Tangent", 22, 2, 23, 1))
sketch5.addConstraint(Sketcher.Constraint("Tangent", 23, 2, 24, 1))
sketch5.addConstraint(Sketcher.Constraint("Tangent", 24, 2, 25, 1))
sketch5.addConstraint(Sketcher.Constraint("Tangent", 25, 2, 26, 1))
sketch5.addConstraint(Sketcher.Constraint("Coincident", 26, 2, 21, 1))
sketch5.addConstraint(Sketcher.Constraint("Vertical", 0))
sketch5.addConstraint(Sketcher.Constraint("Horizontal", 1))
sketch5.addConstraint(Sketcher.Constraint("Vertical", 3))
sketch5.addConstraint(Sketcher.Constraint("Horizontal", 5))
sketch5.addConstraint(Sketcher.Constraint("Horizontal", 7))
sketch5.addConstraint(Sketcher.Constraint("Vertical", 8))
sketch5.addConstraint(Sketcher.Constraint("Horizontal", 9))
sketch5.addConstraint(Sketcher.Constraint("Vertical", 11))
sketch5.addConstraint(Sketcher.Constraint("Vertical", 14))
sketch5.addConstraint(Sketcher.Constraint("Horizontal", 16))
sketch5.addConstraint(Sketcher.Constraint("Vertical", 17))
sketch5.addConstraint(Sketcher.Constraint("Horizontal", 18))
sketch5.addConstraint(Sketcher.Constraint("Vertical", 21))
sketch5.addConstraint(Sketcher.Constraint("Horizontal", 22))
sketch5.addConstraint(Sketcher.Constraint("Vertical", 24))
sketch5.addConstraint(Sketcher.Constraint("Horizontal", 26))
sketch5.addConstraint(Sketcher.Constraint("Equal", 2, 4))
sketch5.addConstraint(Sketcher.Constraint("Equal", 4, 10))
sketch5.addConstraint(Sketcher.Constraint("Equal", 10, 12))
sketch5.addConstraint(Sketcher.Constraint("Equal", 6, 13))
sketch5.addConstraint(Sketcher.Constraint("Equal", 12, 15))
sketch5.addConstraint(Sketcher.Constraint("Equal", 15, 19))
sketch5.addConstraint(Sketcher.Constraint("Equal", 13, 20))
sketch5.addConstraint(Sketcher.Constraint("Equal", 19, 23))
sketch5.addConstraint(Sketcher.Constraint("Equal", 23, 25))
sketch5.addConstraint(Sketcher.Constraint("Equal", 20, 27))
sketch5.addConstraint(Sketcher.Constraint("Horizontal", 4, 3, 10, 3))
sketch5.addConstraint(Sketcher.Constraint("Horizontal", 2, 3, 12, 3))
sketch5.addConstraint(Sketcher.Constraint("Horizontal", 6, 3, 13, 3))
sketch5.addConstraint(Sketcher.Constraint("Horizontal", 15, 3, 23, 3))
sketch5.addConstraint(Sketcher.Constraint("Horizontal", 19, 3, 25, 3))
sketch5.addConstraint(Sketcher.Constraint("Horizontal", 20, 3, 27, 3))
sketch5.addConstraint(Sketcher.Constraint("Vertical", 12, 3, 15, 3))
sketch5.addConstraint(Sketcher.Constraint("Vertical", 13, 3, 20, 3))
sketch5.addConstraint(Sketcher.Constraint("Vertical", 4, 3, 23, 3))
sketch5.addConstraint(Sketcher.Constraint("Vertical", 6, 3, 27, 3))
sketch5.addConstraint(Sketcher.Constraint("Vertical", 8, 2, 16, 2))
sketch5.addConstraint(Sketcher.Constraint("Vertical", 5, 2, 21, 2))
sketch5.addConstraint(Sketcher.Constraint("Equal", 5, 7))
sketch5.addConstraint(Sketcher.Constraint("Equal", 26, 3))
sketch5.addConstraint(Sketcher.Constraint("Equal", 11, 14))
sketch5.addConstraint(Sketcher.Constraint("Diameter", 6, 4.0))
sketch5.addConstraint(Sketcher.Constraint("Radius", 2, 3.0))
sketch5.addConstraint(Sketcher.Constraint("DistanceX", 1, 2, 1, 1, 9.0))
sketch5.addConstraint(Sketcher.Constraint("DistanceX", 2, 3, -1, 1, 95.0))
sketch5.addConstraint(Sketcher.Constraint("DistanceY", 2, 3, -1, 1, 2.0))
sketch5.addConstraint(Sketcher.Constraint("DistanceX", 6, 3, -1, 1, 93.0))
sketch5.addConstraint(Sketcher.Constraint("DistanceX", -1, 1, 10, 3, 43.0))
sketch5.addConstraint(Sketcher.Constraint("DistanceX", -1, 1, 13, 3, 41.0))
sketch5.addConstraint(Sketcher.Constraint("DistanceY", -1, 1, 15, 3, 63.0))
sketch5.addConstraint(Sketcher.Constraint("DistanceY", 13, 3, 20, 3, 65.0))
sketch5.addConstraint(Sketcher.Constraint("DistanceY", 6, 3, -1, 1, 6.5))
pad3 = body.newObject("PartDesign::Pad", "Pad002")
pad3.Profile = sketch5
pad3.Length = 3
pad3.Reversed = True
doc.recompute()

fillet = body.newObject("PartDesign::Fillet", "Fillet")
fillet.Base = (pad3, edges_at(pad3, [
    (-86, 1, 78.5),
    (-86, -14, 78.5),
    (34, -14, 78.5),
    (34, 1, 78.5),
    (34, 51, 78.5),
    (34, 66, 78.5),
    (-86, 66, 78.5),
    (-86, 51, 78.5),
]))
fillet.Radius = 3
doc.recompute()

fillet2 = body.newObject("PartDesign::Fillet", "Fillet001")
fillet2.Base = (fillet, edges_at(fillet, [
    (34, 58.5, 77),
    (34, -6.5, 77),
    (-86, 58.5, 77),
    (-86, -6.5, 77),
]))
fillet2.Radius = 3

sketch6 = body.newObject("Sketcher::SketchObject", "Sketch005")
sketch6.AttachmentSupport = (doc.getObject("XY_Plane"), [""])
sketch6.MapMode = "FlatFace"
sketch6.addGeometry(Part.Circle(App.Vector(-81, -29, 0), App.Vector(0, 0, 1), 1), False)
sketch6.addGeometry(Part.Circle(App.Vector(-81, 81, 0), App.Vector(0, 0, 1), 1), False)
sketch6.addGeometry(Part.Circle(App.Vector(29, -29, 0), App.Vector(0, 0, 1), 1), False)
sketch6.addGeometry(Part.Circle(App.Vector(29, 81, 0), App.Vector(0, 0, 1), 1), False)
sketch6.addConstraint(Sketcher.Constraint("Equal", 0, 1))
sketch6.addConstraint(Sketcher.Constraint("Equal", 1, 2))
sketch6.addConstraint(Sketcher.Constraint("Equal", 2, 3))
sketch6.addConstraint(Sketcher.Constraint("Horizontal", 0, 3, 2, 3))
sketch6.addConstraint(Sketcher.Constraint("Horizontal", 1, 3, 3, 3))
sketch6.addConstraint(Sketcher.Constraint("Vertical", 0, 3, 1, 3))
sketch6.addConstraint(Sketcher.Constraint("Vertical", 2, 3, 3, 3))
sketch6.addConstraint(Sketcher.Constraint("Diameter", 0, 2.05))
sketch6.addConstraint(Sketcher.Constraint("DistanceX", 0, 3, -1, 1, 81.0))
sketch6.addConstraint(Sketcher.Constraint("DistanceY", 0, 3, -1, 1, 29.0))
sketch6.addConstraint(Sketcher.Constraint("DistanceY", -1, 1, 1, 3, 81.0))
sketch6.addConstraint(Sketcher.Constraint("DistanceX", -1, 1, 2, 3, 29.0))
doc.recompute()
hole = body.newObject("PartDesign::Hole", "Hole")
hole.Profile = sketch6
hole.ThreadType = "None"
hole.Diameter = 2.05
hole.DepthType = "ThroughAll"
hole.Reversed = True

doc.recompute()
